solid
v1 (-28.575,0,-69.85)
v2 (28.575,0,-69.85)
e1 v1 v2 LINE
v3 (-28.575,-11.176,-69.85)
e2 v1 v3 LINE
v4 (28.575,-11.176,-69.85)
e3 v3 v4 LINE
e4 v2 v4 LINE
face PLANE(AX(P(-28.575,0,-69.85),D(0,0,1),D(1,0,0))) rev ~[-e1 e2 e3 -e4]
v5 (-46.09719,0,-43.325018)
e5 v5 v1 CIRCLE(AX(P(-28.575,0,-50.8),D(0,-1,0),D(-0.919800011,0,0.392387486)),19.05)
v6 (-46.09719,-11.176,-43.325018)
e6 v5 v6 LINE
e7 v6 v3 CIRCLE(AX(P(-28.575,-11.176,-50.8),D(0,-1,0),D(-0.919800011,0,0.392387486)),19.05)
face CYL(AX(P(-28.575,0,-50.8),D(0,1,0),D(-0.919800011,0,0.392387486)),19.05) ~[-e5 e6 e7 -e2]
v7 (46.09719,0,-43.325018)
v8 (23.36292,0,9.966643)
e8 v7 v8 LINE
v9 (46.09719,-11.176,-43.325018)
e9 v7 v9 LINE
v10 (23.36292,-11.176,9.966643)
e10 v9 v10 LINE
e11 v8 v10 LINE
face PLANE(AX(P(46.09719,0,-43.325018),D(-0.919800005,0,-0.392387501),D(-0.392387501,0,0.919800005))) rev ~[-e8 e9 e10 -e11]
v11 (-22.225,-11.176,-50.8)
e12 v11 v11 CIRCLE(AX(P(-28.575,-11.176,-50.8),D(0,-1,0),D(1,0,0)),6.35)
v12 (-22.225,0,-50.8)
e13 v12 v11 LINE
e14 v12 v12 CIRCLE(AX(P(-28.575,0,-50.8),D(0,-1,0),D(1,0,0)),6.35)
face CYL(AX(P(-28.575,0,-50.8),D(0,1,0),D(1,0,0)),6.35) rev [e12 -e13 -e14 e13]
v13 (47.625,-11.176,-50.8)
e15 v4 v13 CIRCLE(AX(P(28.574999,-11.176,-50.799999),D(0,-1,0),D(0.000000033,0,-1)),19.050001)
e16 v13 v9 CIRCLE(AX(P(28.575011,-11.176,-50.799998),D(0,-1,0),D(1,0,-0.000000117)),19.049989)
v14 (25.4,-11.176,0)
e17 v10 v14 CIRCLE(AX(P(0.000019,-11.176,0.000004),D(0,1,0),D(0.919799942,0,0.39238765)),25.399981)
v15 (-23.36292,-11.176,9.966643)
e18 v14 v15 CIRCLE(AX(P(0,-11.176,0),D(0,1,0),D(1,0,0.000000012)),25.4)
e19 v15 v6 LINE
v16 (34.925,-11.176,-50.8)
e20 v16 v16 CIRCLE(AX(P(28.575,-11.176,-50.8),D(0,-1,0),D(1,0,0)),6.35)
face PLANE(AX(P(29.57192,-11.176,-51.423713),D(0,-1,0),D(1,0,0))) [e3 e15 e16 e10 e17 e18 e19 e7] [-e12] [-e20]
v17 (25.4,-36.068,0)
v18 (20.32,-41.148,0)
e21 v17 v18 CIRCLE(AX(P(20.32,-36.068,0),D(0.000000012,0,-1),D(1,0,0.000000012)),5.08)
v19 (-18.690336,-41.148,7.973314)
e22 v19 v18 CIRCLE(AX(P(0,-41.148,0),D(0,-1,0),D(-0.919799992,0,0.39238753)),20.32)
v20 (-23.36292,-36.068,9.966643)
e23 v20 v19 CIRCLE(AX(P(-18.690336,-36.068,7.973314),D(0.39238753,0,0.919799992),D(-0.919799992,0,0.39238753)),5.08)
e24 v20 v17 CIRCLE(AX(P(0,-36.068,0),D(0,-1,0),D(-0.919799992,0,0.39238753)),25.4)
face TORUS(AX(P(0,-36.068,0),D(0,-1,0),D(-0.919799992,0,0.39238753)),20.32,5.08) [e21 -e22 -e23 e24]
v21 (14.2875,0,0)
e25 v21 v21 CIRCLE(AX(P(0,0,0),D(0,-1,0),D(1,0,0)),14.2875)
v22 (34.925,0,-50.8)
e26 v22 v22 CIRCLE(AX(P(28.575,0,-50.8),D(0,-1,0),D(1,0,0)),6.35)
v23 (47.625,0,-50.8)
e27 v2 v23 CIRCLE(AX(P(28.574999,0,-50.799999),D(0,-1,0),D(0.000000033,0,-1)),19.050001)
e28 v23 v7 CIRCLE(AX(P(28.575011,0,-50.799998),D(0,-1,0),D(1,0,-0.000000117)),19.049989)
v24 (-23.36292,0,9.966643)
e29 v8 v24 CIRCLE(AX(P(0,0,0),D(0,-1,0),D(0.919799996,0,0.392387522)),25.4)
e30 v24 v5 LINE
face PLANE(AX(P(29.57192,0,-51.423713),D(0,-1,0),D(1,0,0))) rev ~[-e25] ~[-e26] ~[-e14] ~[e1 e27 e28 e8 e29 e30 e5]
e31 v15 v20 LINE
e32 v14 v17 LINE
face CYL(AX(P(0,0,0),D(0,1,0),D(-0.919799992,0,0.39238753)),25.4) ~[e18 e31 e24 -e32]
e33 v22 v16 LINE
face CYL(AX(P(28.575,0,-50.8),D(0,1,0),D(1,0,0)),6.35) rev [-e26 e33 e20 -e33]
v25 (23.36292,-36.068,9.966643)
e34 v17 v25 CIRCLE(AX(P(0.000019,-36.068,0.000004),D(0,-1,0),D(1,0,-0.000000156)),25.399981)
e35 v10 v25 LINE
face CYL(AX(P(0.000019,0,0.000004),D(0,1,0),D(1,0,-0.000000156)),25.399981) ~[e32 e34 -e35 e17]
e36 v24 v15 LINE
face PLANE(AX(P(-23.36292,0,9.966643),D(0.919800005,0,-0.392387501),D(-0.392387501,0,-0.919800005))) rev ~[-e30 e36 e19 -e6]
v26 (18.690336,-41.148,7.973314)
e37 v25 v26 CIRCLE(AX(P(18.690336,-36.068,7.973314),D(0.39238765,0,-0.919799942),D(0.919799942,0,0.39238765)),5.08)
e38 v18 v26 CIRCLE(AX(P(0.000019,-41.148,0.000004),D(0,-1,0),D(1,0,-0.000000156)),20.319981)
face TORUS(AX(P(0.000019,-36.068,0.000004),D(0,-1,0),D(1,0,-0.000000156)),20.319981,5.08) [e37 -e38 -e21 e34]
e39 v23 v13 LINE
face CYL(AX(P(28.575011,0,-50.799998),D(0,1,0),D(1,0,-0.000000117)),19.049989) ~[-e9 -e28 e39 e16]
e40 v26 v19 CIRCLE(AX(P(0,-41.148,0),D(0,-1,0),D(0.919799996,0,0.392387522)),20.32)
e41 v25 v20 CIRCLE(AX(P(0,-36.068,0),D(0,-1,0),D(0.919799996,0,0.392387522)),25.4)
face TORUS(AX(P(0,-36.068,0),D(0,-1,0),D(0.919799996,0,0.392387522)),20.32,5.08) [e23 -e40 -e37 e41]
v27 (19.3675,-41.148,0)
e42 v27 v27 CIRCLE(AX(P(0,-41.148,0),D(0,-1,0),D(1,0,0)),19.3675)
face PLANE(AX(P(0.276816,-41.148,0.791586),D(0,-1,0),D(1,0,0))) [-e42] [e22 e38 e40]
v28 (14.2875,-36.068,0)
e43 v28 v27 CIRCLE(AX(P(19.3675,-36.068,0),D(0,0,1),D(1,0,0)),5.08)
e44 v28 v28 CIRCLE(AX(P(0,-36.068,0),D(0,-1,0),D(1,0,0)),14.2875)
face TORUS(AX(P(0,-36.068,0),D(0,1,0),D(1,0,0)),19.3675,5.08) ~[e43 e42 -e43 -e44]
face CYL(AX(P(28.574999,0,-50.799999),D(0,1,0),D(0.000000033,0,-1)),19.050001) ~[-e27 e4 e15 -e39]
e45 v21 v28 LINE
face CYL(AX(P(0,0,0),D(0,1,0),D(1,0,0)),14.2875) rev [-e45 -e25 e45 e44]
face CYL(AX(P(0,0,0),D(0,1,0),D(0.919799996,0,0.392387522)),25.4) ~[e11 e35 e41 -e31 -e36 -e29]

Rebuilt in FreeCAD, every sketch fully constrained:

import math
import FreeCAD as App
import Part
import Sketcher
from FreeCAD import Vector
Q = App.Units.Quantity


def edges_at(feature, points):
    """Names of the edges that pass closest to the given points."""
    edges = feature.Shape.Edges
    near = lambda p: min(range(len(edges)), key=lambda i: edges[i].distToShape(Part.Vertex(*p))[0])
    return sorted({f"Edge{near(p) + 1}" for p in points})

doc = App.newDocument("Part")
body = doc.addObject("PartDesign::Body", "Body")

sketch1 = body.newObject("Sketcher::SketchObject", "Sketch")
sketch1.AttachmentSupport = (doc.getObject("XZ_Plane"), [""])
sketch1.MapMode = "FlatFace"
sketch1.addGeometry(Part.ArcOfCircle(Part.Circle(Vector(0, 0, 0), Vector(0, 0, 1), 25), math.radians(157), math.radians(360)), False)
sketch1.addGeometry(Part.ArcOfCircle(Part.Circle(Vector(0, 0, 0), Vector(0, 0, 1), 25), math.radians(0), math.radians(23)), False)
sketch1.addGeometry(Part.ArcOfCircle(Part.Circle(Vector(0, 0, 0), Vector(0, 0, 1), 25), math.radians(23), math.radians(157)), False)
sketch1.addGeometry(Part.Circle(Vector(0, 0, 0), Vector(0, 0, 1), 14), False)
sketch1.addConstraint(Sketcher.Constraint("Tangent", 0, 2, 1, 1))
sketch1.addConstraint(Sketcher.Constraint("Tangent", 1, 2, 2, 1))
sketch1.addConstraint(Sketcher.Constraint("Tangent", 2, 2, 0, 1))
sketch1.addConstraint(Sketcher.Constraint("Coincident", 0, 3, -1, 1))
sketch1.addConstraint(Sketcher.Constraint("Coincident", 3, 3, -1, 1))
sketch1.addConstraint(Sketcher.Constraint("PointOnObject", 0, 2, -1))
sketch1.addConstraint(Sketcher.Constraint("Horizontal", 1, 2, 2, 2))
sketch1.addConstraint(Sketcher.Constraint("Radius", 0, Q("1 in")))
sketch1.addConstraint(Sketcher.Constraint("Diameter", 3, Q("1.125 in")))
sketch1.addConstraint(Sketcher.Constraint("DistanceX", -1, 1, 1, 2, Q("0.9198 in")))
pad1 = body.newObject("PartDesign::Pad", "Pad")
pad1.Profile = sketch1
pad1.Length = Q("1.62 in")
doc.recompute()

fillet = body.newObject("PartDesign::Fillet", "Fillet")
fillet.Base = (pad1, edges_at(pad1, [(-5.086, -41.148, -24.886), (-14.287, -41.148, 0)]))
fillet.Radius = Q("0.2 in")

sketch2 = body.newObject("Sketcher::SketchObject", "Sketch001")
sketch2.AttachmentSupport = (doc.getObject("XZ_Plane"), [""])
sketch2.MapMode = "FlatFace"
sketch2.addGeometry(Part.ArcOfCircle(Part.Circle(Vector(0, 0, 0), Vector(0, 0, 1), 25), math.radians(0), math.radians(23)), False)
sketch2.addGeometry(Part.ArcOfCircle(Part.Circle(Vector(0, 0, 0), Vector(0, 0, 1), 25), math.radians(157), math.radians(360)), False)
sketch2.addGeometry(Part.LineSegment(Vector(-23, 10, 0), Vector(-46, -43, 0)), False)
sketch2.addGeometry(Part.ArcOfCircle(Part.Circle(Vector(-29, -51, 0), Vector(0, 0, 1), 19), math.radians(0), math.radians(157)), False)
sketch2.addGeometry(Part.ArcOfCircle(Part.Circle(Vector(-29, -51, 0), Vector(0, 0, 1), 19), math.radians(-90), math.radians(0)), False)
sketch2.addGeometry(Part.LineSegment(Vector(-29, -70, 0), Vector(29, -70, 0)), False)
sketch2.addGeometry(Part.ArcOfCircle(Part.Circle(Vector(29, -51, 0), Vector(0, 0, 1), 19), math.radians(23), math.radians(270)), False)
sketch2.addGeometry(Part.LineSegment(Vector(46, -43, 0), Vector(23, 10, 0)), False)
sketch2.addConstraint(Sketcher.Constraint("Tangent", 0, 1, 1, 2))
sketch2.addConstraint(Sketcher.Constraint("Tangent", 1, 1, 2, 1))
sketch2.addConstraint(Sketcher.Constraint("Tangent", 2, 2, 3, 2))
sketch2.addConstraint(Sketcher.Constraint("Tangent", 3, 1, 4, 2))
sketch2.addConstraint(Sketcher.Constraint("Tangent", 4, 1, 5, 1))
sketch2.addConstraint(Sketcher.Constraint("Tangent", 5, 2, 6, 2))
sketch2.addConstraint(Sketcher.Constraint("Tangent", 6, 1, 7, 1))
sketch2.addConstraint(Sketcher.Constraint("Tangent", 7, 2, 0, 2))
sketch2.addConstraint(Sketcher.Constraint("Horizontal", 5))
sketch2.addConstraint(Sketcher.Constraint("Coincident", 1, 3, -1, 1))
sketch2.addConstraint(Sketcher.Constraint("Equal", 3, 4))
sketch2.addConstraint(Sketcher.Constraint("Equal", 4, 6))
sketch2.addConstraint(Sketcher.Constraint("Symmetric", 1, 1, 7, 2, -2))
sketch2.addConstraint(Sketcher.Constraint("PointOnObject", 0, 1, -1))
sketch2.addConstraint(Sketcher.Constraint("Horizontal", 6, 3, 3, 1))
sketch2.addConstraint(Sketcher.Constraint("Radius", 1, Q("1 in")))
sketch2.addConstraint(Sketcher.Constraint("Radius", 3, Q("0.75 in")))
sketch2.addConstraint(Sketcher.Constraint("DistanceY", 3, 3, -1, 1, Q("2 in")))
sketch2.addConstraint(Sketcher.Constraint("DistanceX", 5, 1, 5, 2, Q("2.25 in")))
pad2 = body.newObject("PartDesign::Pad", "Pad001")
pad2.Profile = sketch2
pad2.Length = Q("0.44 in")

sketch3 = body.newObject("Sketcher::SketchObject", "Sketch002")
sketch3.AttachmentSupport = (doc.getObject("XZ_Plane"), [""])
sketch3.MapMode = "FlatFace"
sketch3.addGeometry(Part.ArcOfCircle(Part.Circle(Vector(-29, -51, 0), Vector(0, 0, 1), 19), math.radians(0), math.radians(157)), False)
sketch3.addGeometry(Part.ArcOfCircle(Part.Circle(Vector(-29, -51, 0), Vector(0, 0, 1), 19), math.radians(157), math.radians(270)), False)
sketch3.addGeometry(Part.ArcOfCircle(Part.Circle(Vector(-29, -51, 0), Vector(0, 0, 1), 19), math.radians(-90), math.radians(0)), False)
sketch3.addGeometry(Part.Circle(Vector(-29, -51, 0), Vector(0, 0, 1), 6), False)
sketch3.addConstraint(Sketcher.Constraint("Tangent", 0, 2, 1, 1))
sketch3.addConstraint(Sketcher.Constraint("Tangent", 1, 2, 2, 1))
sketch3.addConstraint(Sketcher.Constraint("Tangent", 2, 2, 0, 1))
sketch3.addConstraint(Sketcher.Constraint("Coincident", 3, 3, 0, 3))
sketch3.addConstraint(Sketcher.Constraint("Horizontal", 3, 3, 2, 2))
sketch3.addConstraint(Sketcher.Constraint("Vertical", 3, 3, 1, 2))
sketch3.addConstraint(Sketcher.Constraint("Diameter", 3, Q("0.5 in")))
sketch3.addConstraint(Sketcher.Constraint("Radius", 0, Q("0.75 in")))
sketch3.addConstraint(Sketcher.Constraint("DistanceY", 0, 3, -1, 1, Q("2 in")))
sketch3.addConstraint(Sketcher.Constraint("DistanceX", 0, 3, -1, 1, Q("1.125 in")))
sketch3.addConstraint(Sketcher.Constraint("DistanceX", 0, 2, -1, 1, 46.09719))
pad3 = body.newObject("PartDesign::Pad", "Pad002")
pad3.Profile = sketch3
pad3.Length = Q("0.44 in")

sketch4 = body.newObject("Sketcher::SketchObject", "Sketch003")
sketch4.AttachmentSupport = (doc.getObject("XZ_Plane"), [""])
sketch4.MapMode = "FlatFace"
sketch4.addGeometry(Part.ArcOfCircle(Part.Circle(Vector(29, -51, 0), Vector(0, 0, 1), 19), math.radians(0), math.radians(23)), False)
sketch4.addGeometry(Part.ArcOfCircle(Part.Circle(Vector(29, -51, 0), Vector(0, 0, 1), 19), math.radians(23), math.radians(270)), False)
sketch4.addGeometry(Part.ArcOfCircle(Part.Circle(Vector(29, -51, 0), Vector(0, 0, 1), 19), math.radians(-90), math.radians(0)), False)
sketch4.addGeometry(Part.Circle(Vector(29, -51, 0), Vector(0, 0, 1), 6), False)
sketch4.addConstraint(Sketcher.Constraint("Tangent", 0, 2, 1, 1))
sketch4.addConstraint(Sketcher.Constraint("Tangent", 1, 2, 2, 1))
sketch4.addConstraint(Sketcher.Constraint("Tangent", 2, 2, 0, 1))
sketch4.addConstraint(Sketcher.Constraint("Coincident", 3, 3, 1, 3))
sketch4.addConstraint(Sketcher.Constraint("Horizontal", 3, 3, 2, 2))
sketch4.addConstraint(Sketcher.Constraint("Vertical", 3, 3, 1, 2))
sketch4.addConstraint(Sketcher.Constraint("Diameter", 3, Q("0.5 in")))
sketch4.addConstraint(Sketcher.Constraint("Radius", 1, Q("0.75 in")))
sketch4.addConstraint(Sketcher.Constraint("DistanceY", 0, 3, -1, 1, Q("1.9999999 in")))
sketch4.addConstraint(Sketcher.Constraint("DistanceX", -1, 1, 1, 3, Q("1.125 in")))
sketch4.addConstraint(Sketcher.Constraint("DistanceX", -1, 1, 0, 2, 46.09719))
pad4 = body.newObject("PartDesign::Pad", "Pad003")
pad4.Profile = sketch4
pad4.Length = Q("0.44 in")

doc.recompute()
